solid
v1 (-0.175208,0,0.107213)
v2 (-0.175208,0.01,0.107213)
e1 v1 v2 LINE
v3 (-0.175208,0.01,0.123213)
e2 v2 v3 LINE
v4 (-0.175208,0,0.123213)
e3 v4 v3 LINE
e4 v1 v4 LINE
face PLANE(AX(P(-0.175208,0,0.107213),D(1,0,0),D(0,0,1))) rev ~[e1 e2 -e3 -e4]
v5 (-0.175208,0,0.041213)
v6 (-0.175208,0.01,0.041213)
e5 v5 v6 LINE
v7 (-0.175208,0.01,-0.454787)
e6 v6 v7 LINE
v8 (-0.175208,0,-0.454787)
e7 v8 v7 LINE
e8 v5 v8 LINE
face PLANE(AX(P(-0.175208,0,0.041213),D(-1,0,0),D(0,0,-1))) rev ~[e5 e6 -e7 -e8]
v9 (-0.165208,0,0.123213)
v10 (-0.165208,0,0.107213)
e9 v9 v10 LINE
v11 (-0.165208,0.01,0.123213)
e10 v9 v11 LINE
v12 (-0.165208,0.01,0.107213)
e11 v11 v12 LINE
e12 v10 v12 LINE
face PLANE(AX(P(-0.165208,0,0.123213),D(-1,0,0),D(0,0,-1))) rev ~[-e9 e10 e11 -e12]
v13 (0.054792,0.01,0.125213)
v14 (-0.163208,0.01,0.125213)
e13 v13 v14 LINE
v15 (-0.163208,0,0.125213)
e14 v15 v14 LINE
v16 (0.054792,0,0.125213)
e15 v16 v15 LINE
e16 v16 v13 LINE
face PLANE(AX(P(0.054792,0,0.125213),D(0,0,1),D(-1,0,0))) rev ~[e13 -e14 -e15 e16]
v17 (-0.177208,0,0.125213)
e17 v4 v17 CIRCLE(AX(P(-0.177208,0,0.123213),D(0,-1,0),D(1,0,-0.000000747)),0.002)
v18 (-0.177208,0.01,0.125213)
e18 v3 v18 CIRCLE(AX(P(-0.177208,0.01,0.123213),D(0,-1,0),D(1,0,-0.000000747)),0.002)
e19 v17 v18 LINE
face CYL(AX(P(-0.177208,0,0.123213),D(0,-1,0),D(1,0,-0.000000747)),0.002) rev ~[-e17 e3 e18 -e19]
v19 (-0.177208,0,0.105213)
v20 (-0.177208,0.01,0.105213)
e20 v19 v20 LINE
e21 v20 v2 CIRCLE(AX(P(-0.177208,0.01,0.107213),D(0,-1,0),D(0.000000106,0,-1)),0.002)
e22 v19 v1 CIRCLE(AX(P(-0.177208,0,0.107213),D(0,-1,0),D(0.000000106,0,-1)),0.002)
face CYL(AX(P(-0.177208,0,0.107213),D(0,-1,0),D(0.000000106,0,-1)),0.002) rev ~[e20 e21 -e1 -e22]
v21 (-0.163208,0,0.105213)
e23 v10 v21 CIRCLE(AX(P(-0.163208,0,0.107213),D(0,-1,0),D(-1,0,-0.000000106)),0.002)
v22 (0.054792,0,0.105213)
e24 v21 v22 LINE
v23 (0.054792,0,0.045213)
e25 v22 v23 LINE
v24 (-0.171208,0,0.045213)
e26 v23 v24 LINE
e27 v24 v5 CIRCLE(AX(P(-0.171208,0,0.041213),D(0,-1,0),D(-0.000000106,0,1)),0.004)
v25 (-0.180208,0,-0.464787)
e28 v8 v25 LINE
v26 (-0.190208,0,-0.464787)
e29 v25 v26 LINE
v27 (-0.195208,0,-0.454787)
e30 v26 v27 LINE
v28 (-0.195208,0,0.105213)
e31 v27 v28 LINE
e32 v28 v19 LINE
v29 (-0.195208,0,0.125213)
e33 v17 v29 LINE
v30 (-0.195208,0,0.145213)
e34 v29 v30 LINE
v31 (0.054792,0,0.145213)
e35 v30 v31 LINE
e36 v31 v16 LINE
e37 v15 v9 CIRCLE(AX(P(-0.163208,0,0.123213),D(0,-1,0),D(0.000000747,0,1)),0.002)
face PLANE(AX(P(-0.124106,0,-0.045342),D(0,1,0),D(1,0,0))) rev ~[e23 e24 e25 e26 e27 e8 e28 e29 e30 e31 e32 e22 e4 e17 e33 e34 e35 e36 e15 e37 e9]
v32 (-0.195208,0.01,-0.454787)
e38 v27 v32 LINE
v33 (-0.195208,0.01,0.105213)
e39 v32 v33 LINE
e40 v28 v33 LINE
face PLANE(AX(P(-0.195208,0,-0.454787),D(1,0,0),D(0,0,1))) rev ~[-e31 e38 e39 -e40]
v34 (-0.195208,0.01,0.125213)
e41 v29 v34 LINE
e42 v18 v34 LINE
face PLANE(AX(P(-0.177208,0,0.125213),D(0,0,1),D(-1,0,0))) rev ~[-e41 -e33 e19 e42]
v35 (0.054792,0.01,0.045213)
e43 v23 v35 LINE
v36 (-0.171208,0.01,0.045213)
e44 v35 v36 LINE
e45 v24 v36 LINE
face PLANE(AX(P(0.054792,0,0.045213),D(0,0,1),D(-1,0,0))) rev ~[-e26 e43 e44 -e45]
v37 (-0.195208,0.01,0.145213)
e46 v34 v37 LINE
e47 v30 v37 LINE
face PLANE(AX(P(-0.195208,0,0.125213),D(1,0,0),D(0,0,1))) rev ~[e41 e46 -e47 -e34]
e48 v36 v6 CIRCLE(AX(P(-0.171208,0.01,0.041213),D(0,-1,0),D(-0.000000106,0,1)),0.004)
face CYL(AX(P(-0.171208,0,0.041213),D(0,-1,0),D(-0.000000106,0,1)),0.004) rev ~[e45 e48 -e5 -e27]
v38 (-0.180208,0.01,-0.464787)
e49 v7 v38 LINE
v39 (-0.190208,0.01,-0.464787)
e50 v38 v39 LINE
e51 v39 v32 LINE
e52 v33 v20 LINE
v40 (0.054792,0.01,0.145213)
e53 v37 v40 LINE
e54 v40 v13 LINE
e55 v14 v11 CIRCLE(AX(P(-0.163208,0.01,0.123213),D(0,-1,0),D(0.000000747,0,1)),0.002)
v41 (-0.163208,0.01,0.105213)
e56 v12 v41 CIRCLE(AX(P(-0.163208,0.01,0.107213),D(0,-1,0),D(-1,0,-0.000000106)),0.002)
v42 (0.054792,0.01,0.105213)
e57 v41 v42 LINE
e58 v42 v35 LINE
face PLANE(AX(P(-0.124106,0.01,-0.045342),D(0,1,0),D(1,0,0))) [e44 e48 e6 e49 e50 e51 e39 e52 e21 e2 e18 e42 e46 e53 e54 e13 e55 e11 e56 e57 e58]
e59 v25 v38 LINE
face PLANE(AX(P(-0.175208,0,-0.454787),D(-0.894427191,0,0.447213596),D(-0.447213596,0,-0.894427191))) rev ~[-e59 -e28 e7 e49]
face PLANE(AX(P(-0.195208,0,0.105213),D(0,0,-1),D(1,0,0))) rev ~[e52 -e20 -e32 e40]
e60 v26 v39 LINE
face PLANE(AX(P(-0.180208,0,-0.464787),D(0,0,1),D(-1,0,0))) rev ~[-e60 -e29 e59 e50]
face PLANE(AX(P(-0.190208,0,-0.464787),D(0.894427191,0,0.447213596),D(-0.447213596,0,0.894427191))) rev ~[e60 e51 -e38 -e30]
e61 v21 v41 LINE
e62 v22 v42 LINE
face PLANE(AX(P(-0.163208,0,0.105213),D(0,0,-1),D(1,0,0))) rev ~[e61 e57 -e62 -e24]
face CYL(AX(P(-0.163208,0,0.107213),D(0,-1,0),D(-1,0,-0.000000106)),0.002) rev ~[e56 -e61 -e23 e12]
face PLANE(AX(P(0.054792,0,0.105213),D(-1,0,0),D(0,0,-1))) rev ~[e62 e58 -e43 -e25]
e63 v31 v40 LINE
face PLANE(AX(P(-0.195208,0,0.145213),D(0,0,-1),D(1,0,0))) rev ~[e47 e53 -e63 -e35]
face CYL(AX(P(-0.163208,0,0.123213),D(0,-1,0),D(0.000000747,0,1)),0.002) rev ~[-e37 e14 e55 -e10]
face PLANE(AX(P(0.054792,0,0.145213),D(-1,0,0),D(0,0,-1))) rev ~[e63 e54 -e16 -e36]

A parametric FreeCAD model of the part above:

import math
import FreeCAD as App
import Part
import Sketcher

doc = App.newDocument("Part")
body = doc.addObject("PartDesign::Body", "Body")

# Sketch on XZ plane
sketch1 = body.newObject("Sketcher::SketchObject", "Sketch")
sketch1.AttachmentSupport = (doc.getObject("XZ_Plane"), [""])
sketch1.MapMode = "FlatFace"
sketch1.addGeometry([
    Part.LineSegment(App.Vector(-0.1752, -0.4548, 0), App.Vector(-0.1802, -0.4648, 0)),  # 0
    Part.LineSegment(App.Vector(-0.1802, -0.4648, 0), App.Vector(-0.1902, -0.4648, 0)),  # 1
    Part.LineSegment(App.Vector(-0.1902, -0.4648, 0), App.Vector(-0.1952, -0.4548, 0)),  # 2
    Part.LineSegment(App.Vector(-0.1952, -0.4548, 0), App.Vector(-0.1952, 0.1052, 0)),  # 3
    Part.LineSegment(App.Vector(-0.1952, 0.1052, 0), App.Vector(-0.1772, 0.1052, 0)),  # 4
    Part.ArcOfCircle(Part.Circle(App.Vector(-0.1772, 0.1072, 0), App.Vector(0, 0, 1), 0.002), math.radians(-90), math.radians(0)),  # 5
    Part.LineSegment(App.Vector(-0.1752, 0.1072, 0), App.Vector(-0.1752, 0.1232, 0)),  # 6
    Part.ArcOfCircle(Part.Circle(App.Vector(-0.1772, 0.1232, 0), App.Vector(0, 0, 1), 0.002), math.radians(0), math.radians(90)),  # 7
    Part.LineSegment(App.Vector(-0.1772, 0.1252, 0), App.Vector(-0.1952, 0.1252, 0)),  # 8
    Part.LineSegment(App.Vector(-0.1952, 0.1252, 0), App.Vector(-0.1952, 0.1452, 0)),  # 9
    Part.LineSegment(App.Vector(-0.1952, 0.1452, 0), App.Vector(0.0548, 0.1452, 0)),  # 10
    Part.LineSegment(App.Vector(0.0548, 0.1452, 0), App.Vector(0.0548, 0.1252, 0)),  # 11
    Part.LineSegment(App.Vector(0.0548, 0.1252, 0), App.Vector(-0.1632, 0.1252, 0)),  # 12
    Part.ArcOfCircle(Part.Circle(App.Vector(-0.1632, 0.1232, 0), App.Vector(0, 0, 1), 0.002), math.radians(90), math.radians(180)),  # 13
    Part.LineSegment(App.Vector(-0.1652, 0.1232, 0), App.Vector(-0.1652, 0.1072, 0)),  # 14
    Part.ArcOfCircle(Part.Circle(App.Vector(-0.1632, 0.1072, 0), App.Vector(0, 0, 1), 0.002), math.radians(180), math.radians(270)),  # 15
    Part.LineSegment(App.Vector(-0.1632, 0.1052, 0), App.Vector(0.0548, 0.1052, 0)),  # 16
    Part.LineSegment(App.Vector(0.0548, 0.1052, 0), App.Vector(0.0548, 0.0452, 0)),  # 17
    Part.LineSegment(App.Vector(0.0548, 0.0452, 0), App.Vector(-0.1712, 0.0452, 0)),  # 18
    Part.ArcOfCircle(Part.Circle(App.Vector(-0.1712, 0.0412, 0), App.Vector(0, 0, 1), 0.004), math.radians(90), math.radians(180)),  # 19
    Part.LineSegment(App.Vector(-0.1752, 0.0412, 0), App.Vector(-0.1752, -0.4548, 0)),  # 20
], False)
sketch1.addConstraint([
    Sketcher.Constraint("Coincident", 0, 2, 1, 1),
    Sketcher.Constraint("Coincident", 1, 2, 2, 1),
    Sketcher.Constraint("Coincident", 2, 2, 3, 1),
    Sketcher.Constraint("Coincident", 3, 2, 4, 1),
    Sketcher.Constraint("Tangent", 4, 2, 5, 1),
    Sketcher.Constraint("Tangent", 5, 2, 6, 1),
    Sketcher.Constraint("Tangent", 6, 2, 7, 1),
    Sketcher.Constraint("Tangent", 7, 2, 8, 1),
    Sketcher.Constraint("Coincident", 8, 2, 9, 1),
    Sketcher.Constraint("Coincident", 9, 2, 10, 1),
    Sketcher.Constraint("Coincident", 10, 2, 11, 1),
    Sketcher.Constraint("Coincident", 11, 2, 12, 1),
    Sketcher.Constraint("Tangent", 12, 2, 13, 1),
    Sketcher.Constraint("Tangent", 13, 2, 14, 1),
    Sketcher.Constraint("Tangent", 14, 2, 15, 1),
    Sketcher.Constraint("Tangent", 15, 2, 16, 1),
    Sketcher.Constraint("Coincident", 16, 2, 17, 1),
    Sketcher.Constraint("Coincident", 17, 2, 18, 1),
    Sketcher.Constraint("Tangent", 18, 2, 19, 1),
    Sketcher.Constraint("Tangent", 19, 2, 20, 1),
    Sketcher.Constraint("Coincident", 20, 2, 0, 1),
    Sketcher.Constraint("Horizontal", 1),
    Sketcher.Constraint("Vertical", 3),
    Sketcher.Constraint("Horizontal", 4),
    Sketcher.Constraint("Vertical", 6),
    Sketcher.Constraint("Horizontal", 8),
    Sketcher.Constraint("Vertical", 9),
    Sketcher.Constraint("Horizontal", 10),
    Sketcher.Constraint("Vertical", 11),
    Sketcher.Constraint("Horizontal", 12),
    Sketcher.Constraint("Vertical", 14),
    Sketcher.Constraint("Horizontal", 16),
    Sketcher.Constraint("Vertical", 17),
    Sketcher.Constraint("Horizontal", 18),
    Sketcher.Constraint("Vertical", 20),
    Sketcher.Constraint("Equal", 5, 7),
    Sketcher.Constraint("Equal", 7, 13),
    Sketcher.Constraint("Equal", 13, 15),
    Sketcher.Constraint("Horizontal", 7, 3, 13, 3),
    Sketcher.Constraint("Horizontal", 5, 3, 15, 3),
    Sketcher.Constraint("Horizontal", 2, 2, 20, 2),
    Sketcher.Constraint("Vertical", 3, 2, 8, 2),
    Sketcher.Constraint("Vertical", 11, 2, 16, 2),
    Sketcher.Constraint("Vertical", 6, 2, 19, 2),
    Sketcher.Constraint("Equal", 0, 2),
    Sketcher.Constraint("Radius", 5, 0.002),
    Sketcher.Constraint("Radius", 19, 0.004),
    Sketcher.Constraint("DistanceX", 1, 2, 1, 1, 0.01),
    Sketcher.Constraint("DistanceX", 10, 1, 10, 2, 0.25),
    Sketcher.Constraint("DistanceY", 3, 1, 3, 2, 0.56),
    Sketcher.Constraint("DistanceY", 9, 1, 9, 2, 0.02),
    Sketcher.Constraint("DistanceY", 17, 2, 17, 1, 0.06),
    Sketcher.Constraint("DistanceY", 17, 2, 10, 2, 0.1),
    Sketcher.Constraint("DistanceX", 4, 1, 4, 2, 0.018),
    Sketcher.Constraint("DistanceX", 12, 2, 12, 1, 0.218),
    Sketcher.Constraint("DistanceY", 1, 2, 2, 2, 0.01),
    Sketcher.Constraint("DistanceX", 5, 3, -1, 1, 0.177208),
    Sketcher.Constraint("DistanceY", -1, 1, 5, 3, 0.107213),
])
pad1 = body.newObject("PartDesign::Pad", "Pad")
pad1.Profile = sketch1
pad1.Length = 0.01
pad1.Reversed = True

doc.recompute()
